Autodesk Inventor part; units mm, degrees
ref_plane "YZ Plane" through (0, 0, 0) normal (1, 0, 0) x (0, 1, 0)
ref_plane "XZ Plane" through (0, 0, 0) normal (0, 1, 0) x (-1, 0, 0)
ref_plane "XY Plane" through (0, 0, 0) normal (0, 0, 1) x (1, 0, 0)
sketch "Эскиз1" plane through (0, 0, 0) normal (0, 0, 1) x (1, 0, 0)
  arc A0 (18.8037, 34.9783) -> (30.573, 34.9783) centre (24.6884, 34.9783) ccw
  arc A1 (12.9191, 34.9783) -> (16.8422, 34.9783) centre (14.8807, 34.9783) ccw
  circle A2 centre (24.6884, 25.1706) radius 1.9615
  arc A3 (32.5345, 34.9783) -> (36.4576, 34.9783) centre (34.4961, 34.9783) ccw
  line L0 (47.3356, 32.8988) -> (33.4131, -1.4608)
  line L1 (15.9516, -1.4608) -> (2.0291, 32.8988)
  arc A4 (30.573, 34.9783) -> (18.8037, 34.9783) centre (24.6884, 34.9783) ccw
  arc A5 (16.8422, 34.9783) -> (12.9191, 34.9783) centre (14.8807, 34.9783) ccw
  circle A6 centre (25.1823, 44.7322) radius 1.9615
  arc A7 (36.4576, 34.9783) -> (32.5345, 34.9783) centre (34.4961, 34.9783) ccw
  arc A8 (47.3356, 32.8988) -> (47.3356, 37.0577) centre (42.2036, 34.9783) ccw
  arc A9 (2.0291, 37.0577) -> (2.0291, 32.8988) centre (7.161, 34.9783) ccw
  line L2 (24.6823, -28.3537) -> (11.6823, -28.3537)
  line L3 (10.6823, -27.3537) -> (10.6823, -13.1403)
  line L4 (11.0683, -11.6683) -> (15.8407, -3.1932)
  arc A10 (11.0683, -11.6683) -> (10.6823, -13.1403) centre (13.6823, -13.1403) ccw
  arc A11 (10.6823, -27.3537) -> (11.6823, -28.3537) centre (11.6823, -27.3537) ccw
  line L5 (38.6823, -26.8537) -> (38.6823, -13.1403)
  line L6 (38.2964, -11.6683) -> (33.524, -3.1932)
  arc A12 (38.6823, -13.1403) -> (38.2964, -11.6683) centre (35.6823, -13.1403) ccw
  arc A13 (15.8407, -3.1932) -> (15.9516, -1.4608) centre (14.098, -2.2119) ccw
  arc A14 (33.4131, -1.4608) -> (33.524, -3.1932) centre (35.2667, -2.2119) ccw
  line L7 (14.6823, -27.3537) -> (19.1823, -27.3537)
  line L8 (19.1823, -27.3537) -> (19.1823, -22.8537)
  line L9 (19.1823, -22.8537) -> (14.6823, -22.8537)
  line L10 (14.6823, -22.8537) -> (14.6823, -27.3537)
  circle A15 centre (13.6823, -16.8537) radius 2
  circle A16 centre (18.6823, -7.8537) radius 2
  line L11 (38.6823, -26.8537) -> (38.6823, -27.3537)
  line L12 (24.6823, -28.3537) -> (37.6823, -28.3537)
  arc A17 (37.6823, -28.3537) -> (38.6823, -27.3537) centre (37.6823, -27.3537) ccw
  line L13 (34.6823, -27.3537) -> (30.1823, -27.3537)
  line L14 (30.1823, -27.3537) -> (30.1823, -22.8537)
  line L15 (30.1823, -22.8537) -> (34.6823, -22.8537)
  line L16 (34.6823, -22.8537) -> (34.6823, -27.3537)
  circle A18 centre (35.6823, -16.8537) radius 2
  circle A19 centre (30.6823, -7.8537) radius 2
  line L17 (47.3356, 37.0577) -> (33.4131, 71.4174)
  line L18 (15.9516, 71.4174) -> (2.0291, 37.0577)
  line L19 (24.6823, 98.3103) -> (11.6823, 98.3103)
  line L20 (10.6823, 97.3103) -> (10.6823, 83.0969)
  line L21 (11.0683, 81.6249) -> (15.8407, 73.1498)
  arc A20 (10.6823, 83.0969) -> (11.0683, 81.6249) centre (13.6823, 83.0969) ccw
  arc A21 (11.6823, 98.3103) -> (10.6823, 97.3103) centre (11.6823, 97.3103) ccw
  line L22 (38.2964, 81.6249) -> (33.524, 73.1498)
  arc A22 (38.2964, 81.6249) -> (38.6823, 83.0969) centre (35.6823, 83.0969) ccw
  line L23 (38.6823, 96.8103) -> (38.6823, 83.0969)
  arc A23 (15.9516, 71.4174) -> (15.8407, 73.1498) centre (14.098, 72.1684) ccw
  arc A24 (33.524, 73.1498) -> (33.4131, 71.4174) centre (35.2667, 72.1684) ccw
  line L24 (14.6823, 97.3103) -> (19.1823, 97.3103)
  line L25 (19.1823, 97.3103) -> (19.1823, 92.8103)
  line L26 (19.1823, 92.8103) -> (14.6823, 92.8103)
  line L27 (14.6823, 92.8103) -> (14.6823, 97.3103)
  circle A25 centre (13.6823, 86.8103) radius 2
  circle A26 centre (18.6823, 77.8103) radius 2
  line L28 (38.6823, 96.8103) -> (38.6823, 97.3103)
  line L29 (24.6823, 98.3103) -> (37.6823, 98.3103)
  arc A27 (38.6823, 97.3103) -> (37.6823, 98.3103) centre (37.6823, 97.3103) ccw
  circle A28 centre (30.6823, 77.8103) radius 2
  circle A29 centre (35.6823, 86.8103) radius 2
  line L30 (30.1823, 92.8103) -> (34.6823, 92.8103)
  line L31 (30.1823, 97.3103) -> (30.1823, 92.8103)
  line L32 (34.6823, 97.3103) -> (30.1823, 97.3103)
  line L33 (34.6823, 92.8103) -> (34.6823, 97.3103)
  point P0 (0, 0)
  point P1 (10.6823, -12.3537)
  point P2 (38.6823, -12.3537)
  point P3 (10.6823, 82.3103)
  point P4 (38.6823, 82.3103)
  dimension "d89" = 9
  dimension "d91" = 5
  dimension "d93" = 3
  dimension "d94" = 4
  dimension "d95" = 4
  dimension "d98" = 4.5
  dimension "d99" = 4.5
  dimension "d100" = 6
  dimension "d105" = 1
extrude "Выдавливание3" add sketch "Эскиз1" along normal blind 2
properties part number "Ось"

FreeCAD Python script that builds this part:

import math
import FreeCAD as App
import Part
import Sketcher

V = App.Vector
Q = App.Units.Quantity

doc = App.newDocument("Part")
body = doc.addObject("PartDesign::Body", "Body")

# Sketch on XY plane
sketch1 = body.newObject("Sketcher::SketchObject", "Sketch")
sketch1.AttachmentSupport = (doc.getObject("XY_Plane"), [""])
sketch1.MapMode = "FlatFace"
sketch1.addGeometry(Part.LineSegment(V(33.4131, -1.4608, 0), V(47.3356, 32.8988, 0)), False)
sketch1.addGeometry(Part.ArcOfCircle(Part.Circle(V(42.2036, 34.9783, 0), V(0, 0, 1), 5.537305), math.radians(-22.057922), math.radians(22.056963)), False)
sketch1.addGeometry(Part.LineSegment(V(47.3356, 37.0577, 0), V(33.4131, 71.4174, 0)), False)
sketch1.addGeometry(Part.ArcOfCircle(Part.Circle(V(35.2667, 72.1684, 0), V(0, 0, 1), 2.000037), math.radians(150.614001), math.radians(202.055701)), False)
sketch1.addGeometry(Part.LineSegment(V(33.524, 73.1498, 0), V(38.2964, 81.6249, 0)), False)
sketch1.addGeometry(Part.ArcOfCircle(Part.Circle(V(35.6823, 83.0969, 0), V(0, 0, 1), 3.00005), math.radians(-29.383866), math.radians(0)), False)
sketch1.addGeometry(Part.LineSegment(V(38.6823, 83.0969, 0), V(38.6823, 97.3103, 0)), False)
sketch1.addGeometry(Part.ArcOfCircle(Part.Circle(V(37.6823, 97.3103, 0), V(0, 0, 1), 1), math.radians(0), math.radians(90)), False)
sketch1.addGeometry(Part.LineSegment(V(37.6823, 98.3103, 0), V(11.6823, 98.3103, 0)), False)
sketch1.addGeometry(Part.ArcOfCircle(Part.Circle(V(11.6823, 97.3103, 0), V(0, 0, 1), 1), math.radians(90), math.radians(180)), False)
sketch1.addGeometry(Part.LineSegment(V(10.6823, 97.3103, 0), V(10.6823, 83.0969, 0)), False)
sketch1.addGeometry(Part.ArcOfCircle(Part.Circle(V(13.6823, 83.0969, 0), V(0, 0, 1), 3), math.radians(180), math.radians(209.384803)), False)
sketch1.addGeometry(Part.LineSegment(V(11.0683, 81.6249, 0), V(15.8407, 73.1498, 0)), False)
sketch1.addGeometry(Part.ArcOfCircle(Part.Circle(V(14.098, 72.1684, 0), V(0, 0, 1), 1.999958), math.radians(-22.055701), math.radians(29.385999)), False)
sketch1.addGeometry(Part.LineSegment(V(15.9516, 71.4174, 0), V(2.0291, 37.0577, 0)), False)
sketch1.addGeometry(Part.ArcOfCircle(Part.Circle(V(7.161, 34.9783, 0), V(0, 0, 1), 5.537175), math.radians(157.942649), math.radians(202.05831)), False)
sketch1.addGeometry(Part.LineSegment(V(2.0291, 32.8988, 0), V(15.9516, -1.4608, 0)), False)
sketch1.addGeometry(Part.ArcOfCircle(Part.Circle(V(14.098, -2.2119, 0), V(0, 0, 1), 1.999988), math.radians(-29.383503), math.radians(22.058356)), False)
sketch1.addGeometry(Part.LineSegment(V(15.8407, -3.1932, 0), V(11.0683, -11.6683, 0)), False)
sketch1.addGeometry(Part.ArcOfCircle(Part.Circle(V(13.6823, -13.1403, 0), V(0, 0, 1), 2.999963), math.radians(150.615197), math.radians(180)), False)
sketch1.addGeometry(Part.LineSegment(V(10.6823, -13.1403, 0), V(10.6823, -27.3537, 0)), False)
sketch1.addGeometry(Part.ArcOfCircle(Part.Circle(V(11.6823, -27.3537, 0), V(0, 0, 1), 1), math.radians(180), math.radians(270)), False)
sketch1.addGeometry(Part.LineSegment(V(11.6823, -28.3537, 0), V(37.6823, -28.3537, 0)), False)
sketch1.addGeometry(Part.ArcOfCircle(Part.Circle(V(37.6823, -27.3537, 0), V(0, 0, 1), 1), math.radians(-90), math.radians(0)), False)
sketch1.addGeometry(Part.LineSegment(V(38.6823, -27.3537, 0), V(38.6823, -13.1403, 0)), False)
sketch1.addGeometry(Part.ArcOfCircle(Part.Circle(V(35.6823, -13.1403, 0), V(0, 0, 1), 3), math.radians(0), math.radians(29.383866)), False)
sketch1.addGeometry(Part.LineSegment(V(38.2964, -11.6683, 0), V(33.524, -3.1932, 0)), False)
sketch1.addGeometry(Part.ArcOfCircle(Part.Circle(V(35.2667, -2.2119, 0), V(0, 0, 1), 1.999996), math.radians(157.941644), math.radians(209.383503)), False)
sketch1.addGeometry(Part.LineSegment(V(19.1823, -27.3537, 0), V(14.6823, -27.3537, 0)), False)
sketch1.addGeometry(Part.LineSegment(V(14.6823, -27.3537, 0), V(14.6823, -22.8537, 0)), False)
sketch1.addGeometry(Part.LineSegment(V(14.6823, -22.8537, 0), V(19.1823, -22.8537, 0)), False)
sketch1.addGeometry(Part.LineSegment(V(19.1823, -22.8537, 0), V(19.1823, -27.3537, 0)), False)
sketch1.addGeometry(Part.Circle(V(13.6823, -16.8537, 0), V(0, 0, 1), 2), False)
sketch1.addGeometry(Part.Circle(V(18.6823, -7.8537, 0), V(0, 0, 1), 2), False)
sketch1.addGeometry(Part.Circle(V(14.8807, 34.9783, 0), V(0, 0, 1), 1.9616), False)
sketch1.addGeometry(Part.LineSegment(V(34.6823, -22.8537, 0), V(34.6823, -27.3537, 0)), False)
sketch1.addGeometry(Part.LineSegment(V(34.6823, -27.3537, 0), V(30.1823, -27.3537, 0)), False)
sketch1.addGeometry(Part.LineSegment(V(30.1823, -27.3537, 0), V(30.1823, -22.8537, 0)), False)
sketch1.addGeometry(Part.LineSegment(V(30.1823, -22.8537, 0), V(34.6823, -22.8537, 0)), False)
sketch1.addGeometry(Part.Circle(V(35.6823, -16.8537, 0), V(0, 0, 1), 2), False)
sketch1.addGeometry(Part.Circle(V(30.6823, -7.8537, 0), V(0, 0, 1), 2), False)
sketch1.addGeometry(Part.Circle(V(24.6884, 25.1706, 0), V(0, 0, 1), 1.9615), False)
sketch1.addGeometry(Part.Circle(V(24.6884, 34.9783, 0), V(0, 0, 1), 5.8846), False)
sketch1.addGeometry(Part.Circle(V(34.4961, 34.9783, 0), V(0, 0, 1), 1.9616), False)
sketch1.addGeometry(Part.Circle(V(18.6823, 77.8103, 0), V(0, 0, 1), 2), False)
sketch1.addGeometry(Part.Circle(V(13.6823, 86.8103, 0), V(0, 0, 1), 2), False)
sketch1.addGeometry(Part.LineSegment(V(14.6823, 92.8103, 0), V(14.6823, 97.3103, 0)), False)
sketch1.addGeometry(Part.LineSegment(V(14.6823, 97.3103, 0), V(19.1823, 97.3103, 0)), False)
sketch1.addGeometry(Part.LineSegment(V(19.1823, 97.3103, 0), V(19.1823, 92.8103, 0)), False)
sketch1.addGeometry(Part.LineSegment(V(19.1823, 92.8103, 0), V(14.6823, 92.8103, 0)), False)
sketch1.addGeometry(Part.Circle(V(25.1823, 44.7322, 0), V(0, 0, 1), 1.9615), False)
sketch1.addGeometry(Part.Circle(V(30.6823, 77.8103, 0), V(0, 0, 1), 2), False)
sketch1.addGeometry(Part.Circle(V(35.6823, 86.8103, 0), V(0, 0, 1), 2), False)
sketch1.addGeometry(Part.LineSegment(V(34.6823, 92.8103, 0), V(30.1823, 92.8103, 0)), False)
sketch1.addGeometry(Part.LineSegment(V(30.1823, 92.8103, 0), V(30.1823, 97.3103, 0)), False)
sketch1.addGeometry(Part.LineSegment(V(30.1823, 97.3103, 0), V(34.6823, 97.3103, 0)), False)
sketch1.addGeometry(Part.LineSegment(V(34.6823, 97.3103, 0), V(34.6823, 92.8103, 0)), False)
sketch1.addConstraint(Sketcher.Constraint("Tangent", 0, 2, 1, 1))
sketch1.addConstraint(Sketcher.Constraint("Tangent", 1, 2, 2, 1))
sketch1.addConstraint(Sketcher.Constraint("Tangent", 2, 2, 3, 2))
sketch1.addConstraint(Sketcher.Constraint("Tangent", 3, 1, 4, 1))
sketch1.addConstraint(Sketcher.Constraint("Tangent", 4, 2, 5, 1))
sketch1.addConstraint(Sketcher.Constraint("Tangent", 5, 2, 6, 1))
sketch1.addConstraint(Sketcher.Constraint("Tangent", 6, 2, 7, 1))
sketch1.addConstraint(Sketcher.Constraint("Tangent", 7, 2, 8, 1))
sketch1.addConstraint(Sketcher.Constraint("Tangent", 8, 2, 9, 1))
sketch1.addConstraint(Sketcher.Constraint("Tangent", 9, 2, 10, 1))
sketch1.addConstraint(Sketcher.Constraint("Tangent", 10, 2, 11, 1))
sketch1.addConstraint(Sketcher.Constraint("Tangent", 11, 2, 12, 1))
sketch1.addConstraint(Sketcher.Constraint("Tangent", 12, 2, 13, 2))
sketch1.addConstraint(Sketcher.Constraint("Tangent", 13, 1, 14, 1))
sketch1.addConstraint(Sketcher.Constraint("Tangent", 14, 2, 15, 1))
sketch1.addConstraint(Sketcher.Constraint("Tangent", 15, 2, 16, 1))
sketch1.addConstraint(Sketcher.Constraint("Tangent", 16, 2, 17, 2))
sketch1.addConstraint(Sketcher.Constraint("Tangent", 17, 1, 18, 1))
sketch1.addConstraint(Sketcher.Constraint("Tangent", 18, 2, 19, 1))
sketch1.addConstraint(Sketcher.Constraint("Tangent", 19, 2, 20, 1))
sketch1.addConstraint(Sketcher.Constraint("Tangent", 20, 2, 21, 1))
sketch1.addConstraint(Sketcher.Constraint("Tangent", 21, 2, 22, 1))
sketch1.addConstraint(Sketcher.Constraint("Tangent", 22, 2, 23, 1))
sketch1.addConstraint(Sketcher.Constraint("Tangent", 23, 2, 24, 1))
sketch1.addConstraint(Sketcher.Constraint("Tangent", 24, 2, 25, 1))
sketch1.addConstraint(Sketcher.Constraint("Tangent", 25, 2, 26, 1))
sketch1.addConstraint(Sketcher.Constraint("Tangent", 26, 2, 27, 2))
sketch1.addConstraint(Sketcher.Constraint("Tangent", 27, 1, 0, 1))
sketch1.addConstraint(Sketcher.Constraint("Coincident", 28, 2, 29, 1))
sketch1.addConstraint(Sketcher.Constraint("Coincident", 29, 2, 30, 1))
sketch1.addConstraint(Sketcher.Constraint("Coincident", 30, 2, 31, 1))
sketch1.addConstraint(Sketcher.Constraint("Coincident", 31, 2, 28, 1))
sketch1.addConstraint(Sketcher.Constraint("Coincident", 35, 2, 36, 1))
sketch1.addConstraint(Sketcher.Constraint("Coincident", 36, 2, 37, 1))
sketch1.addConstraint(Sketcher.Constraint("Coincident", 37, 2, 38, 1))
sketch1.addConstraint(Sketcher.Constraint("Coincident", 38, 2, 35, 1))
sketch1.addConstraint(Sketcher.Constraint("Coincident", 46, 2, 47, 1))
sketch1.addConstraint(Sketcher.Constraint("Coincident", 47, 2, 48, 1))
sketch1.addConstraint(Sketcher.Constraint("Coincident", 48, 2, 49, 1))
sketch1.addConstraint(Sketcher.Constraint("Coincident", 49, 2, 46, 1))
sketch1.addConstraint(Sketcher.Constraint("Coincident", 53, 2, 54, 1))
sketch1.addConstraint(Sketcher.Constraint("Coincident", 54, 2, 55, 1))
sketch1.addConstraint(Sketcher.Constraint("Coincident", 55, 2, 56, 1))
sketch1.addConstraint(Sketcher.Constraint("Coincident", 56, 2, 53, 1))
sketch1.addConstraint(Sketcher.Constraint("Vertical", 6))
sketch1.addConstraint(Sketcher.Constraint("Horizontal", 8))
sketch1.addConstraint(Sketcher.Constraint("Vertical", 10))
sketch1.addConstraint(Sketcher.Constraint("Vertical", 20))
sketch1.addConstraint(Sketcher.Constraint("Horizontal", 22))
sketch1.addConstraint(Sketcher.Constraint("Vertical", 24))
sketch1.addConstraint(Sketcher.Constraint("Horizontal", 28))
sketch1.addConstraint(Sketcher.Constraint("Vertical", 29))
sketch1.addConstraint(Sketcher.Constraint("Horizontal", 30))
sketch1.addConstraint(Sketcher.Constraint("Vertical", 31))
sketch1.addConstraint(Sketcher.Constraint("Vertical", 35))
sketch1.addConstraint(Sketcher.Constraint("Horizontal", 36))
sketch1.addConstraint(Sketcher.Constraint("Vertical", 37))
sketch1.addConstraint(Sketcher.Constraint("Horizontal", 38))
sketch1.addConstraint(Sketcher.Constraint("Vertical", 46))
sketch1.addConstraint(Sketcher.Constraint("Horizontal", 47))
sketch1.addConstraint(Sketcher.Constraint("Vertical", 48))
sketch1.addConstraint(Sketcher.Constraint("Horizontal", 49))
sketch1.addConstraint(Sketcher.Constraint("Horizontal", 53))
sketch1.addConstraint(Sketcher.Constraint("Vertical", 54))
sketch1.addConstraint(Sketcher.Constraint("Horizontal", 55))
sketch1.addConstraint(Sketcher.Constraint("Vertical", 56))
sketch1.addConstraint(Sketcher.Constraint("Equal", 7, 9))
sketch1.addConstraint(Sketcher.Constraint("Equal", 5, 11))
sketch1.addConstraint(Sketcher.Constraint("Equal", 3, 13))
sketch1.addConstraint(Sketcher.Constraint("Equal", 1, 15))
sketch1.addConstraint(Sketcher.Constraint("Equal", 13, 17))
sketch1.addConstraint(Sketcher.Constraint("Equal", 11, 19))
sketch1.addConstraint(Sketcher.Constraint("Equal", 9, 21))
sketch1.addConstraint(Sketcher.Constraint("Equal", 21, 23))
sketch1.addConstraint(Sketcher.Constraint("Equal", 19, 25))
sketch1.addConstraint(Sketcher.Constraint("Equal", 17, 27))
sketch1.addConstraint(Sketcher.Constraint("Equal", 27, 32))
sketch1.addConstraint(Sketcher.Constraint("Equal", 32, 33))
sketch1.addConstraint(Sketcher.Constraint("Equal", 33, 39))
sketch1.addConstraint(Sketcher.Constraint("Equal", 39, 40))
sketch1.addConstraint(Sketcher.Constraint("Equal", 34, 41))
sketch1.addConstraint(Sketcher.Constraint("Equal", 41, 43))
sketch1.addConstraint(Sketcher.Constraint("Equal", 40, 44))
sketch1.addConstraint(Sketcher.Constraint("Equal", 44, 45))
sketch1.addConstraint(Sketcher.Constraint("Equal", 43, 50))
sketch1.addConstraint(Sketcher.Constraint("Equal", 45, 51))
sketch1.addConstraint(Sketcher.Constraint("Equal", 51, 52))
sketch1.addConstraint(Sketcher.Constraint("Parallel", 0, 14))
sketch1.addConstraint(Sketcher.Constraint("Parallel", 2, 16))
sketch1.addConstraint(Sketcher.Constraint("Parallel", 4, 18))
sketch1.addConstraint(Sketcher.Constraint("Parallel", 12, 26))
sketch1.addConstraint(Sketcher.Constraint("Horizontal", 5, 3, 11, 3))
sketch1.addConstraint(Sketcher.Constraint("Horizontal", 3, 3, 13, 3))
sketch1.addConstraint(Sketcher.Constraint("Horizontal", 1, 3, 15, 3))
sketch1.addConstraint(Sketcher.Constraint("Horizontal", 19, 3, 25, 3))
sketch1.addConstraint(Sketcher.Constraint("Horizontal", 17, 3, 27, 3))
sketch1.addConstraint(Sketcher.Constraint("Horizontal", 15, 3, 34, 3))
sketch1.addConstraint(Sketcher.Constraint("Horizontal", 32, 3, 39, 3))
sketch1.addConstraint(Sketcher.Constraint("Horizontal", 33, 3, 40, 3))
sketch1.addConstraint(Sketcher.Constraint("Horizontal", 34, 3, 42, 3))
sketch1.addConstraint(Sketcher.Constraint("Horizontal", 42, 3, 43, 3))
sketch1.addConstraint(Sketcher.Constraint("Horizontal", 44, 3, 51, 3))
sketch1.addConstraint(Sketcher.Constraint("Horizontal", 45, 3, 52, 3))
sketch1.addConstraint(Sketcher.Constraint("Horizontal", 4, 2, 11, 2))
sketch1.addConstraint(Sketcher.Constraint("Horizontal", 2, 2, 13, 1))
sketch1.addConstraint(Sketcher.Constraint("Horizontal", 23, 2, 28, 2))
sketch1.addConstraint(Sketcher.Constraint("Horizontal", 31, 2, 35, 2))
sketch1.addConstraint(Sketcher.Constraint("Horizontal", 30, 2, 37, 2))
sketch1.addConstraint(Sketcher.Constraint("Horizontal", 9, 2, 46, 2))
sketch1.addConstraint(Sketcher.Constraint("Horizontal", 49, 2, 53, 2))
sketch1.addConstraint(Sketcher.Constraint("Horizontal", 47, 2, 54, 2))
sketch1.addConstraint(Sketcher.Constraint("Vertical", 13, 3, 17, 3))
sketch1.addConstraint(Sketcher.Constraint("Vertical", 11, 3, 19, 3))
sketch1.addConstraint(Sketcher.Constraint("Vertical", 19, 3, 32, 3))
sketch1.addConstraint(Sketcher.Constraint("Vertical", 25, 3, 39, 3))
sketch1.addConstraint(Sketcher.Constraint("Vertical", 41, 3, 42, 3))
sketch1.addConstraint(Sketcher.Constraint("Vertical", 33, 3, 44, 3))
sketch1.addConstraint(Sketcher.Constraint("Vertical", 32, 3, 45, 3))
sketch1.addConstraint(Sketcher.Constraint("Vertical", 40, 3, 51, 3))
sketch1.addConstraint(Sketcher.Constraint("Vertical", 39, 3, 52, 3))
sketch1.addConstraint(Sketcher.Constraint("Vertical", 29, 2, 46, 2))
sketch1.addConstraint(Sketcher.Constraint("Vertical", 31, 2, 47, 2))
sketch1.addConstraint(Sketcher.Constraint("Vertical", 37, 2, 53, 2))
sketch1.addConstraint(Sketcher.Constraint("Vertical", 38, 2, 55, 2))
sketch1.addConstraint(Sketcher.Constraint("Equal", 30, 36))
sketch1.addConstraint(Sketcher.Constraint("Equal", 10, 20))
sketch1.addConstraint(Sketcher.Constraint("Equal", 55, 29))
sketch1.addConstraint(Sketcher.Constraint("Equal", 37, 46))
sketch1.addConstraint(Sketcher.Constraint("Diameter", 32, Q("4 mm")))
sketch1.addConstraint(Sketcher.Constraint("Radius", 5, Q("3 mm")))
sketch1.addConstraint(Sketcher.Constraint("Radius", 7, Q("1 mm")))
sketch1.addConstraint(Sketcher.Constraint("DistanceX", 28, 2, 28, 1, Q("4.5 mm")))
sketch1.addConstraint(Sketcher.Constraint("DistanceX", 8, 2, 8, 1, Q("26 mm")))
sketch1.addConstraint(Sketcher.Constraint("Diameter", 41, Q("3.923 mm")))
sketch1.addConstraint(Sketcher.Constraint("Diameter", 42, Q("11.7692 mm")))
sketch1.addConstraint(Sketcher.Constraint("Radius", 1, Q("5.5373 mm")))
sketch1.addConstraint(Sketcher.Constraint("DistanceY", 6, 1, 6, 2, Q("14.2134 mm")))
sketch1.addConstraint(Sketcher.Constraint("DistanceY", -1, 1, 5, 3, Q("83.097 mm")))
sketch1.addConstraint(Sketcher.Constraint("DistanceX", -1, 1, 13, 3, Q("14.098 mm")))
sketch1.addConstraint(Sketcher.Constraint("DistanceX", -1, 1, 15, 3, Q("7.161 mm")))
sketch1.addConstraint(Sketcher.Constraint("DistanceY", 17, 3, -1, 1, Q("2.212 mm")))
sketch1.addConstraint(Sketcher.Constraint("DistanceX", -1, 1, 43, 3, Q("34.496 mm")))
sketch1.addConstraint(Sketcher.Constraint("DistanceX", -1, 1, 2, 2, Q("33.413 mm")))
sketch1.addConstraint(Sketcher.Constraint("DistanceX", -1, 1, 3, 1, Q("33.524 mm")))
sketch1.addConstraint(Sketcher.Constraint("DistanceY", 32, 3, -1, 1, Q("16.8537 mm")))
sketch1.addConstraint(Sketcher.Constraint("DistanceX", -1, 1, 33, 3, Q("18.6823 mm")))
sketch1.addConstraint(Sketcher.Constraint("DistanceY", 33, 3, -1, 1, Q("7.8537 mm")))
sketch1.addConstraint(Sketcher.Constraint("DistanceX", -1, 1, 34, 3, Q("14.8807 mm")))
sketch1.addConstraint(Sketcher.Constraint("DistanceX", -1, 1, 40, 3, Q("30.6823 mm")))
sketch1.addConstraint(Sketcher.Constraint("DistanceX", -1, 1, 41, 3, Q("24.6884 mm")))
sketch1.addConstraint(Sketcher.Constraint("DistanceY", -1, 1, 41, 3, Q("25.1706 mm")))
sketch1.addConstraint(Sketcher.Constraint("DistanceY", -1, 1, 44, 3, Q("77.8103 mm")))
sketch1.addConstraint(Sketcher.Constraint("DistanceY", -1, 1, 45, 3, Q("86.8103 mm")))
sketch1.addConstraint(Sketcher.Constraint("DistanceX", -1, 1, 50, 3, Q("25.1823 mm")))
sketch1.addConstraint(Sketcher.Constraint("DistanceY", -1, 1, 50, 3, Q("44.7322 mm")))
sketch1.addConstraint(Sketcher.Constraint("DistanceX", -1, 1, 28, 2, Q("14.6823 mm")))
sketch1.addConstraint(Sketcher.Constraint("DistanceX", -1, 1, 35, 2, Q("34.6823 mm")))
pad1 = body.newObject("PartDesign::Pad", "Pad")
pad1.Profile = sketch1
pad1.Length = 2

doc.recompute()
